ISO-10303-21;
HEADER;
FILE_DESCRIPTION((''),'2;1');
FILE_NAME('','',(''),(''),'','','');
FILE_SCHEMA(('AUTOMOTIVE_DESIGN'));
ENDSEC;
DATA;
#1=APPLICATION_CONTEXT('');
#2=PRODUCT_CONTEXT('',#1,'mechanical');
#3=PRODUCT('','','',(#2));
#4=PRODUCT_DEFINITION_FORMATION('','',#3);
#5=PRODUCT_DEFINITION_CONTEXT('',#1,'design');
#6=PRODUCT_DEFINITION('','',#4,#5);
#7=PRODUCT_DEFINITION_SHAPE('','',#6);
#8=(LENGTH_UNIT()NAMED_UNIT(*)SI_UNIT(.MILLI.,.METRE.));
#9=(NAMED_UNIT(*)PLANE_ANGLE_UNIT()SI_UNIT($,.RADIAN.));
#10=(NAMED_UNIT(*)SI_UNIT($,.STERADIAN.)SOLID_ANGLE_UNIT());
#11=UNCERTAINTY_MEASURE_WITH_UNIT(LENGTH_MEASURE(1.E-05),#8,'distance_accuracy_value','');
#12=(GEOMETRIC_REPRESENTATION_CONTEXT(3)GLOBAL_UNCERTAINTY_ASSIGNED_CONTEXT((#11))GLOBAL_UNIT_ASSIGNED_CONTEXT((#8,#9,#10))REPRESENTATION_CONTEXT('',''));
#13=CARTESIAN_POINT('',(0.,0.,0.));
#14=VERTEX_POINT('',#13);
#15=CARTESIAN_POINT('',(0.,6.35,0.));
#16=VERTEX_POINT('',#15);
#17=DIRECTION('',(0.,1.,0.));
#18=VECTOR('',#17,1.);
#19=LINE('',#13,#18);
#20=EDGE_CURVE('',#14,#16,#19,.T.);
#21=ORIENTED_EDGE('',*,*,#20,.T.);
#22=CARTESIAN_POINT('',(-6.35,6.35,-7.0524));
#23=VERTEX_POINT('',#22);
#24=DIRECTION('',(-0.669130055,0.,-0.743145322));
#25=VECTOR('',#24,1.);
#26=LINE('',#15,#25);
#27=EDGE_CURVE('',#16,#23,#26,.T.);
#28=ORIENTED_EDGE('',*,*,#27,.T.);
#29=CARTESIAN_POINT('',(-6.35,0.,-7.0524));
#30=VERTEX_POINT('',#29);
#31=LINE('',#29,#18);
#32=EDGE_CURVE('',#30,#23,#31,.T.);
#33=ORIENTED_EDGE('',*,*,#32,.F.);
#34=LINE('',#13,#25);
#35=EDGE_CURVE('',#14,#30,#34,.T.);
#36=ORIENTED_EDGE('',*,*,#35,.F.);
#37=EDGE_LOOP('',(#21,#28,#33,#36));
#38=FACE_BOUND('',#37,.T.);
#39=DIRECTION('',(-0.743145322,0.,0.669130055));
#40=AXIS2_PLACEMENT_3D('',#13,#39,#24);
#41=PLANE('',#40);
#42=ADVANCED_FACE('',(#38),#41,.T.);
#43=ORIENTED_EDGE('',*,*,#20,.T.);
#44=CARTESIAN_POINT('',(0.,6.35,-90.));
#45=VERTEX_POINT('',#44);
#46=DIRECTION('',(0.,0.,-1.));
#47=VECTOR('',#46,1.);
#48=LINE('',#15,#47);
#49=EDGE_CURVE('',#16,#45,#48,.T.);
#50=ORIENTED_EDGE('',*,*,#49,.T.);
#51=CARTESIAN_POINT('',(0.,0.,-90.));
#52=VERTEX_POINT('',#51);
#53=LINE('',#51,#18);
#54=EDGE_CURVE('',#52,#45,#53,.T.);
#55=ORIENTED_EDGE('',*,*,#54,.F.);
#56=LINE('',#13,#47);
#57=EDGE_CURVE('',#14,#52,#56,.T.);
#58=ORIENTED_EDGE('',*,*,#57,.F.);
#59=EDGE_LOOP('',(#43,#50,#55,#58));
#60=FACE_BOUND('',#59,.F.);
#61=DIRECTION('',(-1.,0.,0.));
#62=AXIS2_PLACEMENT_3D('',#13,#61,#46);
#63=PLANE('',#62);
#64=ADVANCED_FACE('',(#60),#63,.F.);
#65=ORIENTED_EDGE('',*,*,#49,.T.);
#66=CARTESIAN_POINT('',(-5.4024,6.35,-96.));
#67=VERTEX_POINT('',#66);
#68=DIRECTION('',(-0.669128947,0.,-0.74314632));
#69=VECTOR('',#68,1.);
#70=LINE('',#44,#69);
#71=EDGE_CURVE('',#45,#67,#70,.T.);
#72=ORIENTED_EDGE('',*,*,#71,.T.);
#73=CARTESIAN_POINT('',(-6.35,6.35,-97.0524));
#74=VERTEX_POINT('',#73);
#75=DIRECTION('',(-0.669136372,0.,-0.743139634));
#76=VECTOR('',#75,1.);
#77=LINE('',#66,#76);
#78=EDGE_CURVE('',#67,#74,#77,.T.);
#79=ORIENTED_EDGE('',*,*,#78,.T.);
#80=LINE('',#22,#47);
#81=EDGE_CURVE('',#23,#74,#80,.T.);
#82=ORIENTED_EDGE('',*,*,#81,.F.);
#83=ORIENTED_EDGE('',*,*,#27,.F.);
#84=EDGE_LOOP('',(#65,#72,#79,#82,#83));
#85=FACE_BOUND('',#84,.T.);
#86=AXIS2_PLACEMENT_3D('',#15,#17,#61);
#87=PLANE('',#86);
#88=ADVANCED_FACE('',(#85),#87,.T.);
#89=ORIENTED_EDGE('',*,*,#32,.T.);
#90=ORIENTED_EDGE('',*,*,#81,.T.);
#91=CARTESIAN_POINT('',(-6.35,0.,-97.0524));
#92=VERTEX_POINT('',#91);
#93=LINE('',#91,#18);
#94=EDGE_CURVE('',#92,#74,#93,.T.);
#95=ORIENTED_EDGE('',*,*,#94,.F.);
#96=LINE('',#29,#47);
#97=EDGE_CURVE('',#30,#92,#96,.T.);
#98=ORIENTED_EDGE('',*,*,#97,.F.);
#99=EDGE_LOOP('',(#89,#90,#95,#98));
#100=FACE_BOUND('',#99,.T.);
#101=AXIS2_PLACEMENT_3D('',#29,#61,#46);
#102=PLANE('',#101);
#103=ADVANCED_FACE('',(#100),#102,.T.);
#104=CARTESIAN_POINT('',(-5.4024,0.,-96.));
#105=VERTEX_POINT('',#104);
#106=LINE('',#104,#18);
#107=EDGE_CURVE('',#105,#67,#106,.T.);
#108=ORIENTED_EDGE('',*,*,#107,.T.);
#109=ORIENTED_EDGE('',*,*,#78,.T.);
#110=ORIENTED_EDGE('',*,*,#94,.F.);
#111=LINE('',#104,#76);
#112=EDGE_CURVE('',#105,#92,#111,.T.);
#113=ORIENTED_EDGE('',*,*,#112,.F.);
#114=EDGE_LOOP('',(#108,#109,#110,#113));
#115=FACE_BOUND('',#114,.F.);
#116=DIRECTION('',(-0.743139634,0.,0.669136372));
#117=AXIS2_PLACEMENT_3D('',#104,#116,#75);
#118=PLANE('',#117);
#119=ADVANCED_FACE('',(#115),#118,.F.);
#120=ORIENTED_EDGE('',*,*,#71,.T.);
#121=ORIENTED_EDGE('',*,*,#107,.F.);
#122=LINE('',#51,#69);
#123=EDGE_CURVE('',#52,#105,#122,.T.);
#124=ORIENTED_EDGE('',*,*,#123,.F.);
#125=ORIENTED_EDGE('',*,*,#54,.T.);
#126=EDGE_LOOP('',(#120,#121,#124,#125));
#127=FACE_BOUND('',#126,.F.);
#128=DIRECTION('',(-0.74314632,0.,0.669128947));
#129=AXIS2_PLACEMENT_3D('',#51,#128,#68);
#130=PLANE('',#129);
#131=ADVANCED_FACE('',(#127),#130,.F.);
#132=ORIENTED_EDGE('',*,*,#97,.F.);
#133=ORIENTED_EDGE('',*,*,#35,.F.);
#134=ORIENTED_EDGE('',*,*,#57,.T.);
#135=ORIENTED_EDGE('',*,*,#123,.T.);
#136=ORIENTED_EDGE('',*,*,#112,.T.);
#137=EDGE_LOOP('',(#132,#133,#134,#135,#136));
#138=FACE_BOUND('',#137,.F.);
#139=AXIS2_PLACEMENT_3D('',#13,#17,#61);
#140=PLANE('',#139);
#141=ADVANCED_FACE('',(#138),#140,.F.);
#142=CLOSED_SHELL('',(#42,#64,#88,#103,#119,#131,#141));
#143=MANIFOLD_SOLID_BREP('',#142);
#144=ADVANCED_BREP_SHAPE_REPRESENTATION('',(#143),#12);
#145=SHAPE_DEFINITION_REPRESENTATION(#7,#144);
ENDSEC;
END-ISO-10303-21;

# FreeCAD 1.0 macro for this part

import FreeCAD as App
import Part
import Sketcher
from FreeCAD import Vector
Q = App.Units.Quantity


def add_polygon(sketch, points):
    """Adds a closed chain of lines whose ends are joined by coincident constraints."""
    first, n = sketch.GeometryCount, len(points)
    for a, b in zip(points, points[1:] + points[:1]):
        sketch.addGeometry(Part.LineSegment(App.Vector(*a, 0), App.Vector(*b, 0)), False)
    for i in range(n):
        sketch.addConstraint(Sketcher.Constraint("Coincident", first + i, 2, first + (i + 1) % n, 1))

doc = App.newDocument("Part")
body = doc.addObject("PartDesign::Body", "Body")

sketch1 = doc.addObject("Sketcher::SketchObject", "Sketch")
body.addObject(sketch1)
sketch1.AttachmentSupport = (doc.XZ_Plane, [""])
sketch1.MapMode = "FlatFace"
add_polygon(sketch1, [(-6.3, -7.1), (0, 0), (0, -90), (-5.4, -96), (-6.3, -97.1)])
sketch1.addConstraint([
    Sketcher.Constraint("Vertical", 1),
    Sketcher.Constraint("Vertical", 4),
    Sketcher.Constraint("Coincident", 0, 2, -1, 1),
    Sketcher.Constraint("Parallel", 0, 2),
    Sketcher.Constraint("Parallel", 2, 3),
    Sketcher.Constraint("DistanceY", 1, 2, 1, 1, Q("3.5433 in")),
    Sketcher.Constraint("Angle", 0, Q("48 deg")),
    Sketcher.Constraint("DistanceX", 3, 2, -1, 1, Q("0.25 in")),
    Sketcher.Constraint("DistanceX", 2, 2, -1, 1, Q("0.2127 in")),
])
pad1 = doc.addObject("PartDesign::Pad", "Pad")
body.addObject(pad1)
pad1.Profile = sketch1
pad1.Length = Q("0.25 in")
pad1.Reversed = True

doc.recompute()
